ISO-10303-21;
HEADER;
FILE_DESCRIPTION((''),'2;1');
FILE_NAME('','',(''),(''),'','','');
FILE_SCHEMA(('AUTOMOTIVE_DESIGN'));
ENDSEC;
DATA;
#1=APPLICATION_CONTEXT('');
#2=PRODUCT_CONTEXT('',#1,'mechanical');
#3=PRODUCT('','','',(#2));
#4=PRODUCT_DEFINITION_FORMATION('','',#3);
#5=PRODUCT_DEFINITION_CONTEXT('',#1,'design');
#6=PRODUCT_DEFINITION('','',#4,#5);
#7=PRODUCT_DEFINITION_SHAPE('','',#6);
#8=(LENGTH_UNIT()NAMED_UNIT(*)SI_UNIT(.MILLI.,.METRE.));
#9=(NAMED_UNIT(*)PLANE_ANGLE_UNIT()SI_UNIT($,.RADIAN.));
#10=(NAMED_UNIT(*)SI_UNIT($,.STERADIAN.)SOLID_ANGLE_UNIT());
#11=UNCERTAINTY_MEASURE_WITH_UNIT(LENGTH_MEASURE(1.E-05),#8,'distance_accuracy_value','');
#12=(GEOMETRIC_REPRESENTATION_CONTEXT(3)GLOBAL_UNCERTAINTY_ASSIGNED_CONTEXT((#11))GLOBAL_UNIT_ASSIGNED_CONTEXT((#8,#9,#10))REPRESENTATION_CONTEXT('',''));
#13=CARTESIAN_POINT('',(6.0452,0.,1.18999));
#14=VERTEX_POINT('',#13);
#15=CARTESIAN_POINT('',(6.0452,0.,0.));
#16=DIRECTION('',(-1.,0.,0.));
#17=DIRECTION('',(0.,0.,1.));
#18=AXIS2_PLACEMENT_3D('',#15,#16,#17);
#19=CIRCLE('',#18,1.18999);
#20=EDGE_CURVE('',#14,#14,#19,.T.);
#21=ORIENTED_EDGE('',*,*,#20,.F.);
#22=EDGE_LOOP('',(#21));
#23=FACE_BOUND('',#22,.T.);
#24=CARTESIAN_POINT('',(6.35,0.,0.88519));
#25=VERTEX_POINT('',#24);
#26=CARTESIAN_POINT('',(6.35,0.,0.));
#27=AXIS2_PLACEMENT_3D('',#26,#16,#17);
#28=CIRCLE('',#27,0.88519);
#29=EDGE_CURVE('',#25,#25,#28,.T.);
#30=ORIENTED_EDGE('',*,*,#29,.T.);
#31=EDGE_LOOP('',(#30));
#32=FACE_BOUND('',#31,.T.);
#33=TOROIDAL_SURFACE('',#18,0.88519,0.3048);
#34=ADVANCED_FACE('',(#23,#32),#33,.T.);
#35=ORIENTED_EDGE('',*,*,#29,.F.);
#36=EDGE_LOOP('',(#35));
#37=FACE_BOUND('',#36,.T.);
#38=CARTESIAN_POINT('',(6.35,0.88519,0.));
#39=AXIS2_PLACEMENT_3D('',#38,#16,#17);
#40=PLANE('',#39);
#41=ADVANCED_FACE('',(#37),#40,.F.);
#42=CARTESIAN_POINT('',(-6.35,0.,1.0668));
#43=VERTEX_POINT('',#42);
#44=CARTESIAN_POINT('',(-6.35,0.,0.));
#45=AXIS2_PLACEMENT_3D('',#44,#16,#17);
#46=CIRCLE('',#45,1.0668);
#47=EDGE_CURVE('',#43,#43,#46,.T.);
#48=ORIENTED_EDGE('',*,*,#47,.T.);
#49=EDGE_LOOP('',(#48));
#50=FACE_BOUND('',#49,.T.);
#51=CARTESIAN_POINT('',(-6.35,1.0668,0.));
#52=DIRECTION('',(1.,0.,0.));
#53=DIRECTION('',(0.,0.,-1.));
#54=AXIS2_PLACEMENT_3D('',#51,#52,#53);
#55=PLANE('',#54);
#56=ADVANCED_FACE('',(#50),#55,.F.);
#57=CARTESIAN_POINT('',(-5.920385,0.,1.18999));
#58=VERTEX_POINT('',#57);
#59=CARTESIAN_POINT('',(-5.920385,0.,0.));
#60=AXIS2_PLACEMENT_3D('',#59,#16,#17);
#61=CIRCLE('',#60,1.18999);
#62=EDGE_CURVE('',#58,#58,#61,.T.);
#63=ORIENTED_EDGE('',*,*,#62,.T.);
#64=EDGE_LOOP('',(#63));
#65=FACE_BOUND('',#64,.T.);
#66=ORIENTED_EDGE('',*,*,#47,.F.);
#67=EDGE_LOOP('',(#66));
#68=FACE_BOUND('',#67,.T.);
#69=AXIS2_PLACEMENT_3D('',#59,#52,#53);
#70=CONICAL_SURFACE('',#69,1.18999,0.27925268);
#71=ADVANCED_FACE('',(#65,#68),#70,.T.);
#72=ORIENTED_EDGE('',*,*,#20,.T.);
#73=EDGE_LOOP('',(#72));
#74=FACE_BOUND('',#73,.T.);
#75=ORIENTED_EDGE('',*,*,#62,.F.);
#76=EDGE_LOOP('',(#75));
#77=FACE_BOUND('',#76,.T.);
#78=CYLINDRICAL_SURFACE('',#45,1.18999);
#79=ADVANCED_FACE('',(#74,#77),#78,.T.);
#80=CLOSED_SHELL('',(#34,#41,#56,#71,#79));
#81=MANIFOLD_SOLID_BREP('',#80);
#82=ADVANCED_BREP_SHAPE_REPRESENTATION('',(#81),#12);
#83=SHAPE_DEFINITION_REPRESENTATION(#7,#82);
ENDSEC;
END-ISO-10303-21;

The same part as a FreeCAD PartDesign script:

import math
import FreeCAD as App
import Part
import Sketcher
Q = App.Units.Quantity

doc = App.newDocument("Part")
body = doc.addObject("PartDesign::Body", "Body")

# Sketch on XY plane
sketch1 = body.newObject("Sketcher::SketchObject", "Sketch")
sketch1.AttachmentSupport = (doc.getObject("XY_Plane"), [""])
sketch1.MapMode = "FlatFace"
sketch1.addGeometry([
    Part.LineSegment(App.Vector(6.35, 0, 0), App.Vector(6.35, 0.88519, 0)),  # 0
    Part.ArcOfCircle(Part.Circle(App.Vector(6.0452, 0.88519, 0), App.Vector(0, 0, 1), 0.3048), math.radians(0), math.radians(90)),  # 1
    Part.LineSegment(App.Vector(6.0452, 1.18999, 0), App.Vector(-5.920385, 1.18999, 0)),  # 2
    Part.LineSegment(App.Vector(-5.920385, 1.18999, 0), App.Vector(-6.35, 1.0668, 0)),  # 3
    Part.LineSegment(App.Vector(-6.35, 1.0668, 0), App.Vector(-6.35, 0, 0)),  # 4
    Part.LineSegment(App.Vector(-6.35, 0, 0), App.Vector(6.35, 0, 0)),  # 5
], False)
sketch1.addConstraint([
    Sketcher.Constraint("Tangent", 0, 2, 1, 1),
    Sketcher.Constraint("Tangent", 1, 2, 2, 1),
    Sketcher.Constraint("Coincident", 2, 2, 3, 1),
    Sketcher.Constraint("Coincident", 3, 2, 4, 1),
    Sketcher.Constraint("Coincident", 4, 2, 5, 1),
    Sketcher.Constraint("Coincident", 5, 2, 0, 1),
    Sketcher.Constraint("Vertical", 0),
    Sketcher.Constraint("Horizontal", 2),
    Sketcher.Constraint("Vertical", 4),
    Sketcher.Constraint("Horizontal", 5),
    Sketcher.Constraint("Symmetric", 4, 2, 5, 2, -1, 1),
    Sketcher.Constraint("DistanceX", 5, 1, 5, 2, Q("0.5 in")),
    Sketcher.Constraint("Angle", 3, Q("-164 deg")),
    Sketcher.Constraint("Radius", 1, Q("0.012 in")),
    Sketcher.Constraint("DistanceY", 4, 2, 4, 1, Q("0.042 in")),
    Sketcher.Constraint("DistanceY", 0, 1, 0, 2, Q("0.88519 mm")),
])
revolution = body.newObject("PartDesign::Revolution", "Revolution")
revolution.Profile = sketch1
revolution.ReferenceAxis = (sketch1, ["H_Axis"])
revolution.Angle = 360

doc.recompute()
